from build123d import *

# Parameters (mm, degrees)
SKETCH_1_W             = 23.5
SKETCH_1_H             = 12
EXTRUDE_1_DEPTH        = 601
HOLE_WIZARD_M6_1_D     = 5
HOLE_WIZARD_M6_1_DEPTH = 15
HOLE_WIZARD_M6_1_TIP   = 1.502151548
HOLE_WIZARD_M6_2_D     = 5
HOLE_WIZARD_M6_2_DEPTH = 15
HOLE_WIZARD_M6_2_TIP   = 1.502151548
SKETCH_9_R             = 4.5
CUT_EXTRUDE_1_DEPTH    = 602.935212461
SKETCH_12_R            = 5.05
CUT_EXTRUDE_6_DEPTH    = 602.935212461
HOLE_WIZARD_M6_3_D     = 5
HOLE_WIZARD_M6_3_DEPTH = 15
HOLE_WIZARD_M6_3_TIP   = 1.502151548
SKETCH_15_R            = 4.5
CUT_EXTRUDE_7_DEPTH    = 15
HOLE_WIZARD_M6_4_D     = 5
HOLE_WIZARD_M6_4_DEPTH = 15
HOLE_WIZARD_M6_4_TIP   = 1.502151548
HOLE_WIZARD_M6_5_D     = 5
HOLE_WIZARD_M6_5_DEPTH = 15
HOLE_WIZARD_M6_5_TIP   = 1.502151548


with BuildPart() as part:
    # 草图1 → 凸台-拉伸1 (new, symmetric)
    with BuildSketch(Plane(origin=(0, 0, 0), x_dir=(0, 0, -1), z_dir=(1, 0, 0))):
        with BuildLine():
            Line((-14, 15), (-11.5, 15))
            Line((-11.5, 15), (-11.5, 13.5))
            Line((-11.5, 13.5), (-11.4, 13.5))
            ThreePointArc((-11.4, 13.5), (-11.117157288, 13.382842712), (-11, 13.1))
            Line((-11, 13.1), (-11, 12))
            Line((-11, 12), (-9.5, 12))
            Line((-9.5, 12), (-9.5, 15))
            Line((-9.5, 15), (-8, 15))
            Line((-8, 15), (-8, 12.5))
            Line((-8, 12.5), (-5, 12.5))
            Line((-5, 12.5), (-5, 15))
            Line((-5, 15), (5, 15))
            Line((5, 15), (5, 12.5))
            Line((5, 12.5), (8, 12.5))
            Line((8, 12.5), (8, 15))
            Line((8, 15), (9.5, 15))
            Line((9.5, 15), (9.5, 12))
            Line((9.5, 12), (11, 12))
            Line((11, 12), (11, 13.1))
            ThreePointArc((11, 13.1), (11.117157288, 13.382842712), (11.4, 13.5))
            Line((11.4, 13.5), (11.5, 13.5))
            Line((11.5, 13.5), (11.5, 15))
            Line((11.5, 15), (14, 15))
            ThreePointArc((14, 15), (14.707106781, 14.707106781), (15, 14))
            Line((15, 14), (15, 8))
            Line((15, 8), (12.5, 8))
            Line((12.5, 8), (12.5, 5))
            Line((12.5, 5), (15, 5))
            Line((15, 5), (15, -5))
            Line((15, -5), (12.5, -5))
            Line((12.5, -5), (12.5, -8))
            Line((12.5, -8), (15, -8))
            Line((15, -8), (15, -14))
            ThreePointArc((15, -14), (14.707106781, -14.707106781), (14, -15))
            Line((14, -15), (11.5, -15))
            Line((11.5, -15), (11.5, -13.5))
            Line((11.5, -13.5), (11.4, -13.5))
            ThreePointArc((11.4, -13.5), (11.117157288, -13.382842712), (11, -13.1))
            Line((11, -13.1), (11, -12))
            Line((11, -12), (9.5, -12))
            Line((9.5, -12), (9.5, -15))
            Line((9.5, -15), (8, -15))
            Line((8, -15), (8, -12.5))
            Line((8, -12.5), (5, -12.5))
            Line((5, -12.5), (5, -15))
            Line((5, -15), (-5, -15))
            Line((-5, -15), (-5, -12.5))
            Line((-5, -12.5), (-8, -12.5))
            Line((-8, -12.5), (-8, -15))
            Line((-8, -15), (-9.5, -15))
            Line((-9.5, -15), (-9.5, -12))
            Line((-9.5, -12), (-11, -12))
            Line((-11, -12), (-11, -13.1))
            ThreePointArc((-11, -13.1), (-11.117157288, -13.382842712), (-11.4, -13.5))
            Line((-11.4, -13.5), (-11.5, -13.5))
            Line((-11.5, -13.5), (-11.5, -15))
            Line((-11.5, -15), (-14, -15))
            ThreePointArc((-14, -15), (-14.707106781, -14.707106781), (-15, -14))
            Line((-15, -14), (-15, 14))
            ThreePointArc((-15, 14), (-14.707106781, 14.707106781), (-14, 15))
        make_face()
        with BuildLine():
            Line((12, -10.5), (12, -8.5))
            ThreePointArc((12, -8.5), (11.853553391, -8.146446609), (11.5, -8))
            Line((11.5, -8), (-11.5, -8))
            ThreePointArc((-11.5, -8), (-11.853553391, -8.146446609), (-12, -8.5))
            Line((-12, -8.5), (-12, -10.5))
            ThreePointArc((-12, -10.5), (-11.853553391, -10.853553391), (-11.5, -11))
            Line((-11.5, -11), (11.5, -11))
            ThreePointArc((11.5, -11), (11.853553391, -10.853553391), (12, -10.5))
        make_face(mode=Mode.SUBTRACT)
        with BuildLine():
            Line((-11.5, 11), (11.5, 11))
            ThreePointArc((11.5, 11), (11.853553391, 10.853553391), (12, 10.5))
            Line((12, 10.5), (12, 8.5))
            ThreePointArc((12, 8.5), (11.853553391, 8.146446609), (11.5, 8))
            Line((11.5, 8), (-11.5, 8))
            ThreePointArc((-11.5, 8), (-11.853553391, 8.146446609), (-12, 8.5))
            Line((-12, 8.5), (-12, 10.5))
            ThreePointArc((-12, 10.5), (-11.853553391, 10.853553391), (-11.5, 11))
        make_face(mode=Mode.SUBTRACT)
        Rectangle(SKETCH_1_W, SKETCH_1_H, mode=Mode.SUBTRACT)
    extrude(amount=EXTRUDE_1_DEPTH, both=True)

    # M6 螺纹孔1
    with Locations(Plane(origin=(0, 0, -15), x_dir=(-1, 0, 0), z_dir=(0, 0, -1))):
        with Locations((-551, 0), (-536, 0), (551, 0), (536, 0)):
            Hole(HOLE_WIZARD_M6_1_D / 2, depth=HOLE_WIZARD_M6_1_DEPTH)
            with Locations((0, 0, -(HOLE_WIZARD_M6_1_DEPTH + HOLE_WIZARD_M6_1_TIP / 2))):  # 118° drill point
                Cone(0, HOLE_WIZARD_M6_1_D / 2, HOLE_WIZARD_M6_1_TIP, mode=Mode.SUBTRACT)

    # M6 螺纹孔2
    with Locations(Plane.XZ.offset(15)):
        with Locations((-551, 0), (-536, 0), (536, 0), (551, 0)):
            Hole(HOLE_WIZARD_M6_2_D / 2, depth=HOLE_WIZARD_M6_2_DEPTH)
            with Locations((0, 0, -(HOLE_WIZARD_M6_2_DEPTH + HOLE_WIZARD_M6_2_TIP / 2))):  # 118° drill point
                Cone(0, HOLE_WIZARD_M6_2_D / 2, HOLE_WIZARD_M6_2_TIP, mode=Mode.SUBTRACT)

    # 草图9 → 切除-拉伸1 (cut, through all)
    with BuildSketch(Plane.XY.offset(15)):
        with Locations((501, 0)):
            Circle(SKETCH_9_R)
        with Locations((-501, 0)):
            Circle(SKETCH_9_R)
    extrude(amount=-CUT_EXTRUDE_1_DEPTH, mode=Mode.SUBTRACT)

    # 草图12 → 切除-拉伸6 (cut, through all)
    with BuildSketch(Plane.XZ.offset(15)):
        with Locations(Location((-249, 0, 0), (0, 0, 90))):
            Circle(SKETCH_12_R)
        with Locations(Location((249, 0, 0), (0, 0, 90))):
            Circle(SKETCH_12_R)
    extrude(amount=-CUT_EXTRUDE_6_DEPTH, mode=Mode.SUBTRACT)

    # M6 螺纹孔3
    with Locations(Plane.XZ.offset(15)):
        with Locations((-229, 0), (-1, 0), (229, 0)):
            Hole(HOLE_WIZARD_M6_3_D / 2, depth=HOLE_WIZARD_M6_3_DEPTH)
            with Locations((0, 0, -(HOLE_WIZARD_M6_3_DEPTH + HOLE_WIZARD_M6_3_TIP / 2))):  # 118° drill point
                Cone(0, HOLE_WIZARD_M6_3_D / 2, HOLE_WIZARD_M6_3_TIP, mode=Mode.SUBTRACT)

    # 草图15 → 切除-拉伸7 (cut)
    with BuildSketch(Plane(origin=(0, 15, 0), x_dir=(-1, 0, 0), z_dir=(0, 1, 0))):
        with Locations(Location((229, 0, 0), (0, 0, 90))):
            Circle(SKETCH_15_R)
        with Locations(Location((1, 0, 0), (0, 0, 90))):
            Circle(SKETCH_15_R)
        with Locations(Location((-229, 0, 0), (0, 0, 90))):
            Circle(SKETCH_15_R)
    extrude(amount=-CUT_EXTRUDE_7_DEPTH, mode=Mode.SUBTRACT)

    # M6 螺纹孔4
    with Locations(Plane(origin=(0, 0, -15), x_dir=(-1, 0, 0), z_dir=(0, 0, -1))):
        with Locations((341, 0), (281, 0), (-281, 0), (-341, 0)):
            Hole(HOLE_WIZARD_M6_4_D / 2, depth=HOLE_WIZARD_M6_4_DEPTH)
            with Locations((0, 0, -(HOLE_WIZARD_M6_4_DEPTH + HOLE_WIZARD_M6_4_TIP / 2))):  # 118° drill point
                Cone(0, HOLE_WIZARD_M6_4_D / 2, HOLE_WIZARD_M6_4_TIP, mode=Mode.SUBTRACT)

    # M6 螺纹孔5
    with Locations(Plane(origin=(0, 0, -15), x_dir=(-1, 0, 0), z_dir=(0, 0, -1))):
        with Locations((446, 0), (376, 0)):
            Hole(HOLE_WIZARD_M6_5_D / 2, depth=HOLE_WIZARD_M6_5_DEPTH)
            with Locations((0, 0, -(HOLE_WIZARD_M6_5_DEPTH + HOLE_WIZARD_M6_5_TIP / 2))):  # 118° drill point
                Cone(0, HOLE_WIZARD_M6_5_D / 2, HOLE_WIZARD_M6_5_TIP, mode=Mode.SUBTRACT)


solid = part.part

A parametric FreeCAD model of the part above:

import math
import FreeCAD as App
import Part
import Sketcher

V = App.Vector
Q = App.Units.Quantity

doc = App.newDocument("Part")
params = doc.addObject("Spreadsheet::Sheet", "Params")
for row, (alias, value) in enumerate([
    ("sketch1_radius", "1 mm"),
    ("sketch1_radius2", "0.4 mm"),
    ("sketch1_radius3", "0.5 mm"),
    ("sketch1_width", "28 mm"),
    ("sketch1_width2", "3 mm"),
    ("pad1_length", "1202 mm"),
    ("sketch2_diameter", "5 mm"),
    ("hole_diameter", "5 mm"),
    ("hole_depth", "15 mm"),
    ("sketch3_diameter", "5 mm"),
    ("hole2_diameter", "5 mm"),
    ("hole2_depth", "15 mm"),
    ("sketch4_diameter", "9 mm"),
    ("sketch5_diameter", "10.1 mm"),
    ("sketch6_diameter", "5 mm"),
    ("hole3_diameter", "5 mm"),
    ("hole3_depth", "15 mm"),
    ("sketch7_diameter", "9 mm"),
    ("pocket3_length", "15 mm"),
    ("sketch8_diameter", "5 mm"),
    ("hole4_diameter", "5 mm"),
    ("hole4_depth", "15 mm"),
    ("sketch9_diameter", "5 mm"),
    ("hole5_diameter", "5 mm"),
    ("hole5_depth", "15 mm"),
], start=1):
    params.set(f"A{row}", alias)
    params.set(f"B{row}", "=" + value)
    params.setAlias(f"B{row}", alias)

body = doc.addObject("PartDesign::Body", "Body")

# Sketch on YZ plane
sketch1 = doc.addObject("Sketcher::SketchObject", "Sketch")
body.addObject(sketch1)
sketch1.AttachmentSupport = (doc.YZ_Plane, [""])
sketch1.MapMode = "FlatFace"
sketch1.addGeometry(Part.LineSegment(V(15, 11.5, 0), V(15, 14, 0)), False)
sketch1.addGeometry(Part.ArcOfCircle(Part.Circle(V(14, 14, 0), V(0, 0, 1), 1), math.radians(0), math.radians(90)), False)
sketch1.addGeometry(Part.LineSegment(V(14, 15, 0), V(-14, 15, 0)), False)
sketch1.addGeometry(Part.ArcOfCircle(Part.Circle(V(-14, 14, 0), V(0, 0, 1), 1), math.radians(90), math.radians(180)), False)
sketch1.addGeometry(Part.LineSegment(V(-15, 14, 0), V(-15, 11.5, 0)), False)
sketch1.addGeometry(Part.LineSegment(V(-15, 11.5, 0), V(-13.5, 11.5, 0)), False)
sketch1.addGeometry(Part.LineSegment(V(-13.5, 11.5, 0), V(-13.5, 11.4, 0)), False)
sketch1.addGeometry(Part.ArcOfCircle(Part.Circle(V(-13.1, 11.4, 0), V(0, 0, 1), 0.4), math.radians(-180), math.radians(-90)), False)
sketch1.addGeometry(Part.LineSegment(V(-13.1, 11, 0), V(-12, 11, 0)), False)
sketch1.addGeometry(Part.LineSegment(V(-12, 11, 0), V(-12, 9.5, 0)), False)
sketch1.addGeometry(Part.LineSegment(V(-12, 9.5, 0), V(-15, 9.5, 0)), False)
sketch1.addGeometry(Part.LineSegment(V(-15, 9.5, 0), V(-15, 8, 0)), False)
sketch1.addGeometry(Part.LineSegment(V(-15, 8, 0), V(-12.5, 8, 0)), False)
sketch1.addGeometry(Part.LineSegment(V(-12.5, 8, 0), V(-12.5, 5, 0)), False)
sketch1.addGeometry(Part.LineSegment(V(-12.5, 5, 0), V(-15, 5, 0)), False)
sketch1.addGeometry(Part.LineSegment(V(-15, 5, 0), V(-15, -5, 0)), False)
sketch1.addGeometry(Part.LineSegment(V(-15, -5, 0), V(-12.5, -5, 0)), False)
sketch1.addGeometry(Part.LineSegment(V(-12.5, -5, 0), V(-12.5, -8, 0)), False)
sketch1.addGeometry(Part.LineSegment(V(-12.5, -8, 0), V(-15, -8, 0)), False)
sketch1.addGeometry(Part.LineSegment(V(-15, -8, 0), V(-15, -9.5, 0)), False)
sketch1.addGeometry(Part.LineSegment(V(-15, -9.5, 0), V(-12, -9.5, 0)), False)
sketch1.addGeometry(Part.LineSegment(V(-12, -9.5, 0), V(-12, -11, 0)), False)
sketch1.addGeometry(Part.LineSegment(V(-12, -11, 0), V(-13.1, -11, 0)), False)
sketch1.addGeometry(Part.ArcOfCircle(Part.Circle(V(-13.1, -11.4, 0), V(0, 0, 1), 0.4), math.radians(90), math.radians(180)), False)
sketch1.addGeometry(Part.LineSegment(V(-13.5, -11.4, 0), V(-13.5, -11.5, 0)), False)
sketch1.addGeometry(Part.LineSegment(V(-13.5, -11.5, 0), V(-15, -11.5, 0)), False)
sketch1.addGeometry(Part.LineSegment(V(-15, -11.5, 0), V(-15, -14, 0)), False)
sketch1.addGeometry(Part.ArcOfCircle(Part.Circle(V(-14, -14, 0), V(0, 0, 1), 1), math.radians(-180), math.radians(-90)), False)
sketch1.addGeometry(Part.LineSegment(V(-14, -15, 0), V(-8, -15, 0)), False)
sketch1.addGeometry(Part.LineSegment(V(-8, -15, 0), V(-8, -12.5, 0)), False)
sketch1.addGeometry(Part.LineSegment(V(-8, -12.5, 0), V(-5, -12.5, 0)), False)
sketch1.addGeometry(Part.LineSegment(V(-5, -12.5, 0), V(-5, -15, 0)), False)
sketch1.addGeometry(Part.LineSegment(V(-5, -15, 0), V(5, -15, 0)), False)
sketch1.addGeometry(Part.LineSegment(V(5, -15, 0), V(5, -12.5, 0)), False)
sketch1.addGeometry(Part.LineSegment(V(5, -12.5, 0), V(8, -12.5, 0)), False)
sketch1.addGeometry(Part.LineSegment(V(8, -12.5, 0), V(8, -15, 0)), False)
sketch1.addGeometry(Part.LineSegment(V(8, -15, 0), V(14, -15, 0)), False)
sketch1.addGeometry(Part.ArcOfCircle(Part.Circle(V(14, -14, 0), V(0, 0, 1), 1), math.radians(-90), math.radians(0)), False)
sketch1.addGeometry(Part.LineSegment(V(15, -14, 0), V(15, -11.5, 0)), False)
sketch1.addGeometry(Part.LineSegment(V(15, -11.5, 0), V(13.5, -11.5, 0)), False)
sketch1.addGeometry(Part.LineSegment(V(13.5, -11.5, 0), V(13.5, -11.4, 0)), False)
sketch1.addGeometry(Part.ArcOfCircle(Part.Circle(V(13.1, -11.4, 0), V(0, 0, 1), 0.4), math.radians(0), math.radians(90)), False)
sketch1.addGeometry(Part.LineSegment(V(13.1, -11, 0), V(12, -11, 0)), False)
sketch1.addGeometry(Part.LineSegment(V(12, -11, 0), V(12, -9.5, 0)), False)
sketch1.addGeometry(Part.LineSegment(V(12, -9.5, 0), V(15, -9.5, 0)), False)
sketch1.addGeometry(Part.LineSegment(V(15, -9.5, 0), V(15, -8, 0)), False)
sketch1.addGeometry(Part.LineSegment(V(15, -8, 0), V(12.5, -8, 0)), False)
sketch1.addGeometry(Part.LineSegment(V(12.5, -8, 0), V(12.5, -5, 0)), False)
sketch1.addGeometry(Part.LineSegment(V(12.5, -5, 0), V(15, -5, 0)), False)
sketch1.addGeometry(Part.LineSegment(V(15, -5, 0), V(15, 5, 0)), False)
sketch1.addGeometry(Part.LineSegment(V(15, 5, 0), V(12.5, 5, 0)), False)
sketch1.addGeometry(Part.LineSegment(V(12.5, 5, 0), V(12.5, 8, 0)), False)
sketch1.addGeometry(Part.LineSegment(V(12.5, 8, 0), V(15, 8, 0)), False)
sketch1.addGeometry(Part.LineSegment(V(15, 8, 0), V(15, 9.5, 0)), False)
sketch1.addGeometry(Part.LineSegment(V(15, 9.5, 0), V(12, 9.5, 0)), False)
sketch1.addGeometry(Part.LineSegment(V(12, 9.5, 0), V(12, 11, 0)), False)
sketch1.addGeometry(Part.LineSegment(V(12, 11, 0), V(13.1, 11, 0)), False)
sketch1.addGeometry(Part.ArcOfCircle(Part.Circle(V(13.1, 11.4, 0), V(0, 0, 1), 0.4), math.radians(-90), math.radians(0)), False)
sketch1.addGeometry(Part.LineSegment(V(13.5, 11.4, 0), V(13.5, 11.5, 0)), False)
sketch1.addGeometry(Part.LineSegment(V(13.5, 11.5, 0), V(15, 11.5, 0)), False)
sketch1.addGeometry(Part.ArcOfCircle(Part.Circle(V(-10.5, -11.5, 0), V(0, 0, 1), 0.5), math.radians(180), math.radians(270)), False)
sketch1.addGeometry(Part.LineSegment(V(-11, -11.5, 0), V(-11, 11.5, 0)), False)
sketch1.addGeometry(Part.ArcOfCircle(Part.Circle(V(-10.5, 11.5, 0), V(0, 0, 1), 0.5), math.radians(90), math.radians(180)), False)
sketch1.addGeometry(Part.LineSegment(V(-10.5, 12, 0), V(-8.5, 12, 0)), False)
sketch1.addGeometry(Part.ArcOfCircle(Part.Circle(V(-8.5, 11.5, 0), V(0, 0, 1), 0.5), math.radians(0), math.radians(90)), False)
sketch1.addGeometry(Part.LineSegment(V(-8, 11.5, 0), V(-8, -11.5, 0)), False)
sketch1.addGeometry(Part.ArcOfCircle(Part.Circle(V(-8.5, -11.5, 0), V(0, 0, 1), 0.5), math.radians(-90), math.radians(0)), False)
sketch1.addGeometry(Part.LineSegment(V(-8.5, -12, 0), V(-10.5, -12, 0)), False)
sketch1.addGeometry(Part.LineSegment(V(-6, 11.75, 0), V(6, 11.75, 0)), False)
sketch1.addGeometry(Part.LineSegment(V(6, 11.75, 0), V(6, -11.75, 0)), False)
sketch1.addGeometry(Part.LineSegment(V(6, -11.75, 0), V(-6, -11.75, 0)), False)
sketch1.addGeometry(Part.LineSegment(V(-6, -11.75, 0), V(-6, 11.75, 0)), False)
sketch1.addGeometry(Part.LineSegment(V(11, 11.5, 0), V(11, -11.5, 0)), False)
sketch1.addGeometry(Part.ArcOfCircle(Part.Circle(V(10.5, -11.5, 0), V(0, 0, 1), 0.5), math.radians(-90), math.radians(0)), False)
sketch1.addGeometry(Part.LineSegment(V(10.5, -12, 0), V(8.5, -12, 0)), False)
sketch1.addGeometry(Part.ArcOfCircle(Part.Circle(V(8.5, -11.5, 0), V(0, 0, 1), 0.5), math.radians(180), math.radians(270)), False)
sketch1.addGeometry(Part.LineSegment(V(8, -11.5, 0), V(8, 11.5, 0)), False)
sketch1.addGeometry(Part.ArcOfCircle(Part.Circle(V(8.5, 11.5, 0), V(0, 0, 1), 0.5), math.radians(90), math.radians(180)), False)
sketch1.addGeometry(Part.LineSegment(V(8.5, 12, 0), V(10.5, 12, 0)), False)
sketch1.addGeometry(Part.ArcOfCircle(Part.Circle(V(10.5, 11.5, 0), V(0, 0, 1), 0.5), math.radians(0), math.radians(90)), False)
sketch1.addConstraint(Sketcher.Constraint("Tangent", 0, 2, 1, 1))
sketch1.addConstraint(Sketcher.Constraint("Tangent", 1, 2, 2, 1))
sketch1.addConstraint(Sketcher.Constraint("Tangent", 2, 2, 3, 1))
sketch1.addConstraint(Sketcher.Constraint("Tangent", 3, 2, 4, 1))
sketch1.addConstraint(Sketcher.Constraint("Coincident", 4, 2, 5, 1))
sketch1.addConstraint(Sketcher.Constraint("Coincident", 5, 2, 6, 1))
sketch1.addConstraint(Sketcher.Constraint("Tangent", 6, 2, 7, 1))
sketch1.addConstraint(Sketcher.Constraint("Tangent", 7, 2, 8, 1))
sketch1.addConstraint(Sketcher.Constraint("Coincident", 8, 2, 9, 1))
sketch1.addConstraint(Sketcher.Constraint("Coincident", 9, 2, 10, 1))
sketch1.addConstraint(Sketcher.Constraint("Coincident", 10, 2, 11, 1))
sketch1.addConstraint(Sketcher.Constraint("Coincident", 11, 2, 12, 1))
sketch1.addConstraint(Sketcher.Constraint("Coincident", 12, 2, 13, 1))
sketch1.addConstraint(Sketcher.Constraint("Coincident", 13, 2, 14, 1))
sketch1.addConstraint(Sketcher.Constraint("Coincident", 14, 2, 15, 1))
sketch1.addConstraint(Sketcher.Constraint("Coincident", 15, 2, 16, 1))
sketch1.addConstraint(Sketcher.Constraint("Coincident", 16, 2, 17, 1))
sketch1.addConstraint(Sketcher.Constraint("Coincident", 17, 2, 18, 1))
sketch1.addConstraint(Sketcher.Constraint("Coincident", 18, 2, 19, 1))
sketch1.addConstraint(Sketcher.Constraint("Coincident", 19, 2, 20, 1))
sketch1.addConstraint(Sketcher.Constraint("Coincident", 20, 2, 21, 1))
sketch1.addConstraint(Sketcher.Constraint("Coincident", 21, 2, 22, 1))
sketch1.addConstraint(Sketcher.Constraint("Tangent", 22, 2, 23, 1))
sketch1.addConstraint(Sketcher.Constraint("Tangent", 23, 2, 24, 1))
sketch1.addConstraint(Sketcher.Constraint("Coincident", 24, 2, 25, 1))
sketch1.addConstraint(Sketcher.Constraint("Coincident", 25, 2, 26, 1))
sketch1.addConstraint(Sketcher.Constraint("Tangent", 26, 2, 27, 1))
sketch1.addConstraint(Sketcher.Constraint("Tangent", 27, 2, 28, 1))
sketch1.addConstraint(Sketcher.Constraint("Coincident", 28, 2, 29, 1))
sketch1.addConstraint(Sketcher.Constraint("Coincident", 29, 2, 30, 1))
sketch1.addConstraint(Sketcher.Constraint("Coincident", 30, 2, 31, 1))
sketch1.addConstraint(Sketcher.Constraint("Coincident", 31, 2, 32, 1))
sketch1.addConstraint(Sketcher.Constraint("Coincident", 32, 2, 33, 1))
sketch1.addConstraint(Sketcher.Constraint("Coincident", 33, 2, 34, 1))
sketch1.addConstraint(Sketcher.Constraint("Coincident", 34, 2, 35, 1))
sketch1.addConstraint(Sketcher.Constraint("Coincident", 35, 2, 36, 1))
sketch1.addConstraint(Sketcher.Constraint("Tangent", 36, 2, 37, 1))
sketch1.addConstraint(Sketcher.Constraint("Tangent", 37, 2, 38, 1))
sketch1.addConstraint(Sketcher.Constraint("Coincident", 38, 2, 39, 1))
sketch1.addConstraint(Sketcher.Constraint("Coincident", 39, 2, 40, 1))
sketch1.addConstraint(Sketcher.Constraint("Tangent", 40, 2, 41, 1))
sketch1.addConstraint(Sketcher.Constraint("Tangent", 41, 2, 42, 1))
sketch1.addConstraint(Sketcher.Constraint("Coincident", 42, 2, 43, 1))
sketch1.addConstraint(Sketcher.Constraint("Coincident", 43, 2, 44, 1))
sketch1.addConstraint(Sketcher.Constraint("Coincident", 44, 2, 45, 1))
sketch1.addConstraint(Sketcher.Constraint("Coincident", 45, 2, 46, 1))
sketch1.addConstraint(Sketcher.Constraint("Coincident", 46, 2, 47, 1))
sketch1.addConstraint(Sketcher.Constraint("Coincident", 47, 2, 48, 1))
sketch1.addConstraint(Sketcher.Constraint("Coincident", 48, 2, 49, 1))
sketch1.addConstraint(Sketcher.Constraint("Coincident", 49, 2, 50, 1))
sketch1.addConstraint(Sketcher.Constraint("Coincident", 50, 2, 51, 1))
sketch1.addConstraint(Sketcher.Constraint("Coincident", 51, 2, 52, 1))
sketch1.addConstraint(Sketcher.Constraint("Coincident", 52, 2, 53, 1))
sketch1.addConstraint(Sketcher.Constraint("Coincident", 53, 2, 54, 1))
sketch1.addConstraint(Sketcher.Constraint("Coincident", 54, 2, 55, 1))
sketch1.addConstraint(Sketcher.Constraint("Coincident", 55, 2, 56, 1))
sketch1.addConstraint(Sketcher.Constraint("Tangent", 56, 2, 57, 1))
sketch1.addConstraint(Sketcher.Constraint("Tangent", 57, 2, 58, 1))
sketch1.addConstraint(Sketcher.Constraint("Coincident", 58, 2, 59, 1))
sketch1.addConstraint(Sketcher.Constraint("Coincident", 59, 2, 0, 1))
sketch1.addConstraint(Sketcher.Constraint("Tangent", 60, 1, 61, 1))
sketch1.addConstraint(Sketcher.Constraint("Tangent", 61, 2, 62, 2))
sketch1.addConstraint(Sketcher.Constraint("Tangent", 62, 1, 63, 1))
sketch1.addConstraint(Sketcher.Constraint("Tangent", 63, 2, 64, 2))
sketch1.addConstraint(Sketcher.Constraint("Tangent", 64, 1, 65, 1))
sketch1.addConstraint(Sketcher.Constraint("Tangent", 65, 2, 66, 2))
sketch1.addConstraint(Sketcher.Constraint("Tangent", 66, 1, 67, 1))
sketch1.addConstraint(Sketcher.Constraint("Tangent", 67, 2, 60, 2))
sketch1.addConstraint(Sketcher.Constraint("Coincident", 68, 2, 69, 1))
sketch1.addConstraint(Sketcher.Constraint("Coincident", 69, 2, 70, 1))
sketch1.addConstraint(Sketcher.Constraint("Coincident", 70, 2, 71, 1))
sketch1.addConstraint(Sketcher.Constraint("Coincident", 71, 2, 68, 1))
sketch1.addConstraint(Sketcher.Constraint("Tangent", 72, 2, 73, 2))
sketch1.addConstraint(Sketcher.Constraint("Tangent", 73, 1, 74, 1))
sketch1.addConstraint(Sketcher.Constraint("Tangent", 74, 2, 75, 2))
sketch1.addConstraint(Sketcher.Constraint("Tangent", 75, 1, 76, 1))
sketch1.addConstraint(Sketcher.Constraint("Tangent", 76, 2, 77, 2))
sketch1.addConstraint(Sketcher.Constraint("Tangent", 77, 1, 78, 1))
sketch1.addConstraint(Sketcher.Constraint("Tangent", 78, 2, 79, 2))
sketch1.addConstraint(Sketcher.Constraint("Tangent", 79, 1, 72, 1))
sketch1.addConstraint(Sketcher.Constraint("Vertical", 0))
sketch1.addConstraint(Sketcher.Constraint("Horizontal", 2))
sketch1.addConstraint(Sketcher.Constraint("Vertical", 4))
sketch1.addConstraint(Sketcher.Constraint("Horizontal", 5))
sketch1.addConstraint(Sketcher.Constraint("Vertical", 6))
sketch1.addConstraint(Sketcher.Constraint("Horizontal", 8))
sketch1.addConstraint(Sketcher.Constraint("Vertical", 9))
sketch1.addConstraint(Sketcher.Constraint("Horizontal", 10))
sketch1.addConstraint(Sketcher.Constraint("Vertical", 11))
sketch1.addConstraint(Sketcher.Constraint("Horizontal", 12))
sketch1.addConstraint(Sketcher.Constraint("Vertical", 13))
sketch1.addConstraint(Sketcher.Constraint("Horizontal", 14))
sketch1.addConstraint(Sketcher.Constraint("Vertical", 15))
sketch1.addConstraint(Sketcher.Constraint("Horizontal", 16))
sketch1.addConstraint(Sketcher.Constraint("Vertical", 17))
sketch1.addConstraint(Sketcher.Constraint("Horizontal", 18))
sketch1.addConstraint(Sketcher.Constraint("Vertical", 19))
sketch1.addConstraint(Sketcher.Constraint("Horizontal", 20))
sketch1.addConstraint(Sketcher.Constraint("Vertical", 21))
sketch1.addConstraint(Sketcher.Constraint("Horizontal", 22))
sketch1.addConstraint(Sketcher.Constraint("Vertical", 24))
sketch1.addConstraint(Sketcher.Constraint("Horizontal", 25))
sketch1.addConstraint(Sketcher.Constraint("Vertical", 26))
sketch1.addConstraint(Sketcher.Constraint("Horizontal", 28))
sketch1.addConstraint(Sketcher.Constraint("Vertical", 29))
sketch1.addConstraint(Sketcher.Constraint("Horizontal", 30))
sketch1.addConstraint(Sketcher.Constraint("Vertical", 31))
sketch1.addConstraint(Sketcher.Constraint("Horizontal", 32))
sketch1.addConstraint(Sketcher.Constraint("Vertical", 33))
sketch1.addConstraint(Sketcher.Constraint("Horizontal", 34))
sketch1.addConstraint(Sketcher.Constraint("Vertical", 35))
sketch1.addConstraint(Sketcher.Constraint("Horizontal", 36))
sketch1.addConstraint(Sketcher.Constraint("Vertical", 38))
sketch1.addConstraint(Sketcher.Constraint("Horizontal", 39))
sketch1.addConstraint(Sketcher.Constraint("Vertical", 40))
sketch1.addConstraint(Sketcher.Constraint("Horizontal", 42))
sketch1.addConstraint(Sketcher.Constraint("Vertical", 43))
sketch1.addConstraint(Sketcher.Constraint("Horizontal", 44))
sketch1.addConstraint(Sketcher.Constraint("Vertical", 45))
sketch1.addConstraint(Sketcher.Constraint("Horizontal", 46))
sketch1.addConstraint(Sketcher.Constraint("Vertical", 47))
sketch1.addConstraint(Sketcher.Constraint("Horizontal", 48))
sketch1.addConstraint(Sketcher.Constraint("Vertical", 49))
sketch1.addConstraint(Sketcher.Constraint("Horizontal", 50))
sketch1.addConstraint(Sketcher.Constraint("Vertical", 51))
sketch1.addConstraint(Sketcher.Constraint("Horizontal", 52))
sketch1.addConstraint(Sketcher.Constraint("Vertical", 53))
sketch1.addConstraint(Sketcher.Constraint("Horizontal", 54))
sketch1.addConstraint(Sketcher.Constraint("Vertical", 55))
sketch1.addConstraint(Sketcher.Constraint("Horizontal", 56))
sketch1.addConstraint(Sketcher.Constraint("Vertical", 58))
sketch1.addConstraint(Sketcher.Constraint("Horizontal", 59))
sketch1.addConstraint(Sketcher.Constraint("Vertical", 61))
sketch1.addConstraint(Sketcher.Constraint("Horizontal", 63))
sketch1.addConstraint(Sketcher.Constraint("Vertical", 65))
sketch1.addConstraint(Sketcher.Constraint("Horizontal", 67))
sketch1.addConstraint(Sketcher.Constraint("Horizontal", 68))
sketch1.addConstraint(Sketcher.Constraint("Vertical", 69))
sketch1.addConstraint(Sketcher.Constraint("Horizontal", 70))
sketch1.addConstraint(Sketcher.Constraint("Vertical", 71))
sketch1.addConstraint(Sketcher.Constraint("Vertical", 72))
sketch1.addConstraint(Sketcher.Constraint("Horizontal", 74))
sketch1.addConstraint(Sketcher.Constraint("Vertical", 76))
sketch1.addConstraint(Sketcher.Constraint("Horizontal", 78))
sketch1.addConstraint(Sketcher.Constraint("Equal", 1, 3))
sketch1.addConstraint(Sketcher.Constraint("Equal", 7, 23))
sketch1.addConstraint(Sketcher.Constraint("Equal", 3, 27))
sketch1.addConstraint(Sketcher.Constraint("Equal", 27, 37))
sketch1.addConstraint(Sketcher.Constraint("Equal", 23, 41))
sketch1.addConstraint(Sketcher.Constraint("Equal", 41, 57))
sketch1.addConstraint(Sketcher.Constraint("Equal", 60, 62))
sketch1.addConstraint(Sketcher.Constraint("Equal", 62, 64))
sketch1.addConstraint(Sketcher.Constraint("Equal", 64, 66))
sketch1.addConstraint(Sketcher.Constraint("Equal", 66, 73))
sketch1.addConstraint(Sketcher.Constraint("Equal", 73, 75))
sketch1.addConstraint(Sketcher.Constraint("Equal", 75, 77))
sketch1.addConstraint(Sketcher.Constraint("Equal", 77, 79))
sketch1.addConstraint(Sketcher.Constraint("Symmetric", 1, 3, 27, 3, -1, 1))
sketch1.addConstraint(Sketcher.Constraint("Symmetric", 3, 3, 37, 3, -1, 1))
sketch1.addConstraint(Sketcher.Constraint("Symmetric", 7, 3, 41, 3, -1, 1))
sketch1.addConstraint(Sketcher.Constraint("Symmetric", 23, 3, 57, 3, -1, 1))
sketch1.addConstraint(Sketcher.Constraint("Symmetric", 62, 3, 73, 3, -1, 1))
sketch1.addConstraint(Sketcher.Constraint("Symmetric", 66, 3, 77, 3, -1, 1))
sketch1.addConstraint(Sketcher.Constraint("Symmetric", 9, 2, 43, 2, -1, 1))
sketch1.addConstraint(Sketcher.Constraint("Symmetric", 11, 2, 45, 2, -1, 1))
sketch1.addConstraint(Sketcher.Constraint("Symmetric", 13, 2, 47, 2, -1, 1))
sketch1.addConstraint(Sketcher.Constraint("Symmetric", 15, 2, 49, 2, -1, 1))
sketch1.addConstraint(Sketcher.Constraint("Symmetric", 17, 2, 51, 2, -1, 1))
sketch1.addConstraint(Sketcher.Constraint("Symmetric", 19, 2, 53, 2, -1, 1))
sketch1.addConstraint(Sketcher.Constraint("Symmetric", 68, 2, 70, 2, -1, 1))
sketch1.addConstraint(Sketcher.Constraint("Symmetric", 23, 3, 41, 3, -2))
sketch1.addConstraint(Sketcher.Constraint("Symmetric", 30, 2, 33, 2, -2))
sketch1.addConstraint(Sketcher.Constraint("Symmetric", 25, 2, 38, 2, -2))
sketch1.addConstraint(Sketcher.Constraint("Symmetric", 20, 2, 43, 2, -2))
sketch1.addConstraint(Sketcher.Constraint("Symmetric", 18, 2, 45, 2, -2))
sketch1.addConstraint(Sketcher.Constraint("Symmetric", 16, 2, 47, 2, -2))
sketch1.addConstraint(Sketcher.Constraint("Horizontal", 66, 3, 73, 3))
sketch1.addConstraint(Sketcher.Constraint("Horizontal", 79, 3, 4, 2))
sketch1.addConstraint(Sketcher.Constraint("Horizontal", 75, 3, 24, 2))
sketch1.addConstraint(Sketcher.Constraint("Horizontal", 28, 2, 31, 2))
sketch1.addConstraint(Sketcher.Constraint("Horizontal", 5, 2, 58, 2))
sketch1.addConstraint(Sketcher.Constraint("Vertical", 4, 2, 10, 2))
sketch1.addConstraint(Sketcher.Constraint("Vertical", 11, 2, 14, 2))
sketch1.addConstraint(Sketcher.Constraint("Vertical", 43, 2, 54, 2))
sketch1.addConstraint(Sketcher.Constraint("Vertical", 29, 2, 64, 1))
sketch1.addConstraint(Sketcher.Constraint("Vertical", 35, 2, 75, 1))
sketch1.addConstraint(Sketcher.Constraint("Equal", 20, 30))
sketch1.addConstraint(Sketcher.Constraint("Equal", 52, 0))
sketch1.addConstraint(Sketcher.Constraint("Equal", 59, 9))
sketch1.addConstraint(Sketcher.Constraint("Equal", 9, 11))
sketch1.addConstraint(Sketcher.Constraint("Equal", 54, 13))
sketch1.addConstraint(Sketcher.Constraint("Equal", 32, 15))
sketch1.addConstraint(Sketcher.Constraint("Equal", 26, 29))
sketch1.addConstraint(Sketcher.Constraint("Radius", 1, Q("1 mm")))
sketch1.addConstraint(Sketcher.Constraint("Radius", 7, Q("0.4 mm")))
sketch1.addConstraint(Sketcher.Constraint("Radius", 60, Q("0.5 mm")))
sketch1.addConstraint(Sketcher.Constraint("DistanceX", 2, 2, 2, 1, Q("28 mm")))
sketch1.addConstraint(Sketcher.Constraint("DistanceX", 10, 2, 10, 1, Q("3 mm")))
sketch1.addConstraint(Sketcher.Constraint("DistanceX", 28, 1, 28, 2, Q("6 mm")))
sketch1.addConstraint(Sketcher.Constraint("DistanceX", 63, 1, 63, 2, Q("2 mm")))
sketch1.addConstraint(Sketcher.Constraint("DistanceX", 68, 1, 68, 2, Q("12 mm")))
sketch1.addConstraint(Sketcher.Constraint("DistanceY", 61, 1, 61, 2, Q("23 mm")))
sketch1.addConstraint(Sketcher.Constraint("DistanceX", 5, 1, 5, 2, Q("1.5 mm")))
sketch1.addConstraint(Sketcher.Constraint("DistanceX", 12, 1, 12, 2, Q("2.5 mm")))
sketch1.addConstraint(Sketcher.Constraint("DistanceY", 69, 2, 69, 1, Q("23.5 mm")))
sketch1.setExpression("Constraints[193]", "Params.sketch1_radius")
sketch1.setExpression("Constraints[194]", "Params.sketch1_radius2")
sketch1.setExpression("Constraints[195]", "Params.sketch1_radius3")
sketch1.setExpression("Constraints[196]", "Params.sketch1_width")
sketch1.setExpression("Constraints[197]", "Params.sketch1_width2")
pad1 = doc.addObject("PartDesign::Pad", "Pad")
body.addObject(pad1)
pad1.Profile = sketch1
pad1.setExpression("Length", "Params.pad1_length")
pad1.Midplane = True

# Sketch on XY plane
sketch2 = doc.addObject("Sketcher::SketchObject", "Sketch001")
body.addObject(sketch2)
sketch2.AttachmentSupport = (doc.XY_Plane, [""])
sketch2.MapMode = "FlatFace"
sketch2.AttachmentOffset = App.Placement(V(0, 0, -15), App.Rotation())
sketch2.addGeometry(Part.Circle(V(551, 0, 0), V(0, 0, 1), 2.5), False)
sketch2.addGeometry(Part.Circle(V(536, 0, 0), V(0, 0, 1), 2.5), False)
sketch2.addGeometry(Part.Circle(V(-551, 0, 0), V(0, 0, 1), 2.5), False)
sketch2.addGeometry(Part.Circle(V(-536, 0, 0), V(0, 0, 1), 2.5), False)
sketch2.addConstraint(Sketcher.Constraint("Equal", 0, 1))
sketch2.addConstraint(Sketcher.Constraint("Equal", 1, 2))
sketch2.addConstraint(Sketcher.Constraint("Equal", 2, 3))
sketch2.addConstraint(Sketcher.Constraint("Symmetric", 0, 3, 2, 3, -1, 1))
sketch2.addConstraint(Sketcher.Constraint("Symmetric", 1, 3, 3, 3, -1, 1))
sketch2.addConstraint(Sketcher.Constraint("PointOnObject", 0, 3, -1))
sketch2.addConstraint(Sketcher.Constraint("PointOnObject", 1, 3, -1))
sketch2.addConstraint(Sketcher.Constraint("Diameter", 0, Q("5 mm")))
sketch2.addConstraint(Sketcher.Constraint("DistanceX", -1, 1, 0, 3, Q("551 mm")))
sketch2.addConstraint(Sketcher.Constraint("DistanceX", -1, 1, 1, 3, Q("536 mm")))
sketch2.setExpression("Constraints[7]", "Params.sketch2_diameter")
doc.recompute()
hole = doc.addObject("PartDesign::Hole", "Hole")
body.addObject(hole)
hole.Profile = sketch2
hole.ThreadType = "None"
hole.setExpression("Diameter", "Params.hole_diameter")
hole.DepthType = "Dimension"
hole.setExpression("Depth", "Params.hole_depth")
hole.DrillPoint = "Angled"
hole.DrillPointAngle = 118
hole.Reversed = True

# Sketch on XZ plane
sketch3 = doc.addObject("Sketcher::SketchObject", "Sketch002")
body.addObject(sketch3)
sketch3.AttachmentSupport = (doc.XZ_Plane, [""])
sketch3.MapMode = "FlatFace"
sketch3.AttachmentOffset = App.Placement(V(0, 0, 15), App.Rotation())
sketch3.addGeometry(Part.Circle(V(-551, 0, 0), V(0, 0, 1), 2.5), False)
sketch3.addGeometry(Part.Circle(V(-536, 0, 0), V(0, 0, 1), 2.5), False)
sketch3.addGeometry(Part.Circle(V(536, 0, 0), V(0, 0, 1), 2.5), False)
sketch3.addGeometry(Part.Circle(V(551, 0, 0), V(0, 0, 1), 2.5), False)
sketch3.addConstraint(Sketcher.Constraint("Equal", 0, 1))
sketch3.addConstraint(Sketcher.Constraint("Equal", 1, 2))
sketch3.addConstraint(Sketcher.Constraint("Equal", 2, 3))
sketch3.addConstraint(Sketcher.Constraint("Symmetric", 1, 3, 2, 3, -1, 1))
sketch3.addConstraint(Sketcher.Constraint("Symmetric", 0, 3, 3, 3, -1, 1))
sketch3.addConstraint(Sketcher.Constraint("PointOnObject", 0, 3, -1))
sketch3.addConstraint(Sketcher.Constraint("PointOnObject", 1, 3, -1))
sketch3.addConstraint(Sketcher.Constraint("Diameter", 0, Q("5 mm")))
sketch3.addConstraint(Sketcher.Constraint("DistanceX", 0, 3, -1, 1, Q("551 mm")))
sketch3.addConstraint(Sketcher.Constraint("DistanceX", 1, 3, -1, 1, Q("536 mm")))
sketch3.setExpression("Constraints[7]", "Params.sketch3_diameter")
doc.recompute()
hole2 = doc.addObject("PartDesign::Hole", "Hole001")
body.addObject(hole2)
hole2.Profile = sketch3
hole2.ThreadType = "None"
hole2.setExpression("Diameter", "Params.hole2_diameter")
hole2.DepthType = "Dimension"
hole2.setExpression("Depth", "Params.hole2_depth")
hole2.DrillPoint = "Angled"
hole2.DrillPointAngle = 118

# Sketch on XY plane
sketch4 = doc.addObject("Sketcher::SketchObject", "Sketch003")
body.addObject(sketch4)
sketch4.AttachmentSupport = (doc.XY_Plane, [""])
sketch4.MapMode = "FlatFace"
sketch4.AttachmentOffset = App.Placement(V(0, 0, 15), App.Rotation())
sketch4.addGeometry(Part.Circle(V(501, 0, 0), V(0, 0, 1), 4.5), False)
sketch4.addGeometry(Part.Circle(V(-501, 0, 0), V(0, 0, 1), 4.5), False)
sketch4.addConstraint(Sketcher.Constraint("Equal", 0, 1))
sketch4.addConstraint(Sketcher.Constraint("Symmetric", 0, 3, 1, 3, -1, 1))
sketch4.addConstraint(Sketcher.Constraint("PointOnObject", 0, 3, -1))
sketch4.addConstraint(Sketcher.Constraint("Diameter", 0, Q("9 mm")))
sketch4.addConstraint(Sketcher.Constraint("DistanceX", -1, 1, 0, 3, Q("501 mm")))
sketch4.setExpression("Constraints[3]", "Params.sketch4_diameter")
pocket1 = doc.addObject("PartDesign::Pocket", "Pocket")
body.addObject(pocket1)
pocket1.Profile = sketch4
pocket1.Type = "ThroughAll"

# Sketch on XZ plane
sketch5 = doc.addObject("Sketcher::SketchObject", "Sketch004")
body.addObject(sketch5)
sketch5.AttachmentSupport = (doc.XZ_Plane, [""])
sketch5.MapMode = "FlatFace"
sketch5.AttachmentOffset = App.Placement(V(0, 0, 15), App.Rotation())
sketch5.addGeometry(Part.Circle(V(-249, 0, 0), V(0, 0, 1), 5), False)
sketch5.addGeometry(Part.Circle(V(249, 0, 0), V(0, 0, 1), 5), False)
sketch5.addConstraint(Sketcher.Constraint("Equal", 0, 1))
sketch5.addConstraint(Sketcher.Constraint("Symmetric", 0, 3, 1, 3, -1, 1))
sketch5.addConstraint(Sketcher.Constraint("PointOnObject", 0, 3, -1))
sketch5.addConstraint(Sketcher.Constraint("Diameter", 0, Q("10.1 mm")))
sketch5.addConstraint(Sketcher.Constraint("DistanceX", 0, 3, -1, 1, Q("249 mm")))
sketch5.setExpression("Constraints[3]", "Params.sketch5_diameter")
pocket2 = doc.addObject("PartDesign::Pocket", "Pocket001")
body.addObject(pocket2)
pocket2.Profile = sketch5
pocket2.Type = "ThroughAll"

# Sketch on XZ plane
sketch6 = doc.addObject("Sketcher::SketchObject", "Sketch005")
body.addObject(sketch6)
sketch6.AttachmentSupport = (doc.XZ_Plane, [""])
sketch6.MapMode = "FlatFace"
sketch6.AttachmentOffset = App.Placement(V(0, 0, 15), App.Rotation())
sketch6.addGeometry(Part.Circle(V(-229, 0, 0), V(0, 0, 1), 2.5), False)
sketch6.addGeometry(Part.Circle(V(-1, 0, 0), V(0, 0, 1), 2.5), False)
sketch6.addGeometry(Part.Circle(V(229, 0, 0), V(0, 0, 1), 2.5), False)
sketch6.addConstraint(Sketcher.Constraint("Equal", 0, 1))
sketch6.addConstraint(Sketcher.Constraint("Equal", 1, 2))
sketch6.addConstraint(Sketcher.Constraint("Symmetric", 0, 3, 2, 3, -1, 1))
sketch6.addConstraint(Sketcher.Constraint("PointOnObject", 0, 3, -1))
sketch6.addConstraint(Sketcher.Constraint("PointOnObject", 1, 3, -1))
sketch6.addConstraint(Sketcher.Constraint("Diameter", 0, Q("5 mm")))
sketch6.addConstraint(Sketcher.Constraint("DistanceX", 0, 3, -1, 1, Q("229 mm")))
sketch6.addConstraint(Sketcher.Constraint("DistanceX", 1, 3, -1, 1, Q("1 mm")))
sketch6.setExpression("Constraints[5]", "Params.sketch6_diameter")
doc.recompute()
hole3 = doc.addObject("PartDesign::Hole", "Hole002")
body.addObject(hole3)
hole3.Profile = sketch6
hole3.ThreadType = "None"
hole3.setExpression("Diameter", "Params.hole3_diameter")
hole3.DepthType = "Dimension"
hole3.setExpression("Depth", "Params.hole3_depth")
hole3.DrillPoint = "Angled"
hole3.DrillPointAngle = 118

# Sketch on XZ plane
sketch7 = doc.addObject("Sketcher::SketchObject", "Sketch006")
body.addObject(sketch7)
sketch7.AttachmentSupport = (doc.XZ_Plane, [""])
sketch7.MapMode = "FlatFace"
sketch7.AttachmentOffset = App.Placement(V(0, 0, -15), App.Rotation())
sketch7.addGeometry(Part.Circle(V(-229, 0, 0), V(0, 0, 1), 4.5), False)
sketch7.addGeometry(Part.Circle(V(-1, 0, 0), V(0, 0, 1), 4.5), False)
sketch7.addGeometry(Part.Circle(V(229, 0, 0), V(0, 0, 1), 4.5), False)
sketch7.addConstraint(Sketcher.Constraint("Equal", 0, 1))
sketch7.addConstraint(Sketcher.Constraint("Equal", 1, 2))
sketch7.addConstraint(Sketcher.Constraint("Symmetric", 0, 3, 2, 3, -1, 1))
sketch7.addConstraint(Sketcher.Constraint("PointOnObject", 0, 3, -1))
sketch7.addConstraint(Sketcher.Constraint("PointOnObject", 1, 3, -1))
sketch7.addConstraint(Sketcher.Constraint("Diameter", 0, Q("9 mm")))
sketch7.addConstraint(Sketcher.Constraint("DistanceX", 0, 3, -1, 1, Q("229 mm")))
sketch7.addConstraint(Sketcher.Constraint("DistanceX", 1, 3, -1, 1, Q("1 mm")))
sketch7.setExpression("Constraints[5]", "Params.sketch7_diameter")
pocket3 = doc.addObject("PartDesign::Pocket", "Pocket002")
body.addObject(pocket3)
pocket3.Profile = sketch7
pocket3.setExpression("Length", "Params.pocket3_length")
pocket3.Reversed = True

# Sketch on XY plane
sketch8 = doc.addObject("Sketcher::SketchObject", "Sketch007")
body.addObject(sketch8)
sketch8.AttachmentSupport = (doc.XY_Plane, [""])
sketch8.MapMode = "FlatFace"
sketch8.AttachmentOffset = App.Placement(V(0, 0, -15), App.Rotation())
sketch8.addGeometry(Part.Circle(V(-341, 0, 0), V(0, 0, 1), 2.5), False)
sketch8.addGeometry(Part.Circle(V(-281, 0, 0), V(0, 0, 1), 2.5), False)
sketch8.addGeometry(Part.Circle(V(281, 0, 0), V(0, 0, 1), 2.5), False)
sketch8.addGeometry(Part.Circle(V(341, 0, 0), V(0, 0, 1), 2.5), False)
sketch8.addConstraint(Sketcher.Constraint("Equal", 0, 1))
sketch8.addConstraint(Sketcher.Constraint("Equal", 1, 2))
sketch8.addConstraint(Sketcher.Constraint("Equal", 2, 3))
sketch8.addConstraint(Sketcher.Constraint("Symmetric", 1, 3, 2, 3, -1, 1))
sketch8.addConstraint(Sketcher.Constraint("Symmetric", 0, 3, 3, 3, -1, 1))
sketch8.addConstraint(Sketcher.Constraint("PointOnObject", 0, 3, -1))
sketch8.addConstraint(Sketcher.Constraint("PointOnObject", 1, 3, -1))
sketch8.addConstraint(Sketcher.Constraint("Diameter", 0, Q("5 mm")))
sketch8.addConstraint(Sketcher.Constraint("DistanceX", 0, 3, -1, 1, Q("341 mm")))
sketch8.addConstraint(Sketcher.Constraint("DistanceX", 1, 3, -1, 1, Q("281 mm")))
sketch8.setExpression("Constraints[7]", "Params.sketch8_diameter")
doc.recompute()
hole4 = doc.addObject("PartDesign::Hole", "Hole003")
body.addObject(hole4)
hole4.Profile = sketch8
hole4.ThreadType = "None"
hole4.setExpression("Diameter", "Params.hole4_diameter")
hole4.DepthType = "Dimension"
hole4.setExpression("Depth", "Params.hole4_depth")
hole4.DrillPoint = "Angled"
hole4.DrillPointAngle = 118
hole4.Reversed = True

# Sketch on XY plane
sketch9 = doc.addObject("Sketcher::SketchObject", "Sketch008")
body.addObject(sketch9)
sketch9.AttachmentSupport = (doc.XY_Plane, [""])
sketch9.MapMode = "FlatFace"
sketch9.AttachmentOffset = App.Placement(V(0, 0, -15), App.Rotation())
sketch9.addGeometry(Part.Circle(V(-446, 0, 0), V(0, 0, 1), 2.5), False)
sketch9.addGeometry(Part.Circle(V(-376, 0, 0), V(0, 0, 1), 2.5), False)
sketch9.addConstraint(Sketcher.Constraint("Equal", 0, 1))
sketch9.addConstraint(Sketcher.Constraint("PointOnObject", 0, 3, -1))
sketch9.addConstraint(Sketcher.Constraint("PointOnObject", 1, 3, -1))
sketch9.addConstraint(Sketcher.Constraint("Diameter", 0, Q("5 mm")))
sketch9.addConstraint(Sketcher.Constraint("DistanceX", 0, 3, -1, 1, Q("446 mm")))
sketch9.addConstraint(Sketcher.Constraint("DistanceX", 1, 3, -1, 1, Q("376 mm")))
sketch9.setExpression("Constraints[3]", "Params.sketch9_diameter")
doc.recompute()
hole5 = doc.addObject("PartDesign::Hole", "Hole004")
body.addObject(hole5)
hole5.Profile = sketch9
hole5.ThreadType = "None"
hole5.setExpression("Diameter", "Params.hole5_diameter")
hole5.DepthType = "Dimension"
hole5.setExpression("Depth", "Params.hole5_depth")
hole5.DrillPoint = "Angled"
hole5.DrillPointAngle = 118
hole5.Reversed = True

doc.recompute()
